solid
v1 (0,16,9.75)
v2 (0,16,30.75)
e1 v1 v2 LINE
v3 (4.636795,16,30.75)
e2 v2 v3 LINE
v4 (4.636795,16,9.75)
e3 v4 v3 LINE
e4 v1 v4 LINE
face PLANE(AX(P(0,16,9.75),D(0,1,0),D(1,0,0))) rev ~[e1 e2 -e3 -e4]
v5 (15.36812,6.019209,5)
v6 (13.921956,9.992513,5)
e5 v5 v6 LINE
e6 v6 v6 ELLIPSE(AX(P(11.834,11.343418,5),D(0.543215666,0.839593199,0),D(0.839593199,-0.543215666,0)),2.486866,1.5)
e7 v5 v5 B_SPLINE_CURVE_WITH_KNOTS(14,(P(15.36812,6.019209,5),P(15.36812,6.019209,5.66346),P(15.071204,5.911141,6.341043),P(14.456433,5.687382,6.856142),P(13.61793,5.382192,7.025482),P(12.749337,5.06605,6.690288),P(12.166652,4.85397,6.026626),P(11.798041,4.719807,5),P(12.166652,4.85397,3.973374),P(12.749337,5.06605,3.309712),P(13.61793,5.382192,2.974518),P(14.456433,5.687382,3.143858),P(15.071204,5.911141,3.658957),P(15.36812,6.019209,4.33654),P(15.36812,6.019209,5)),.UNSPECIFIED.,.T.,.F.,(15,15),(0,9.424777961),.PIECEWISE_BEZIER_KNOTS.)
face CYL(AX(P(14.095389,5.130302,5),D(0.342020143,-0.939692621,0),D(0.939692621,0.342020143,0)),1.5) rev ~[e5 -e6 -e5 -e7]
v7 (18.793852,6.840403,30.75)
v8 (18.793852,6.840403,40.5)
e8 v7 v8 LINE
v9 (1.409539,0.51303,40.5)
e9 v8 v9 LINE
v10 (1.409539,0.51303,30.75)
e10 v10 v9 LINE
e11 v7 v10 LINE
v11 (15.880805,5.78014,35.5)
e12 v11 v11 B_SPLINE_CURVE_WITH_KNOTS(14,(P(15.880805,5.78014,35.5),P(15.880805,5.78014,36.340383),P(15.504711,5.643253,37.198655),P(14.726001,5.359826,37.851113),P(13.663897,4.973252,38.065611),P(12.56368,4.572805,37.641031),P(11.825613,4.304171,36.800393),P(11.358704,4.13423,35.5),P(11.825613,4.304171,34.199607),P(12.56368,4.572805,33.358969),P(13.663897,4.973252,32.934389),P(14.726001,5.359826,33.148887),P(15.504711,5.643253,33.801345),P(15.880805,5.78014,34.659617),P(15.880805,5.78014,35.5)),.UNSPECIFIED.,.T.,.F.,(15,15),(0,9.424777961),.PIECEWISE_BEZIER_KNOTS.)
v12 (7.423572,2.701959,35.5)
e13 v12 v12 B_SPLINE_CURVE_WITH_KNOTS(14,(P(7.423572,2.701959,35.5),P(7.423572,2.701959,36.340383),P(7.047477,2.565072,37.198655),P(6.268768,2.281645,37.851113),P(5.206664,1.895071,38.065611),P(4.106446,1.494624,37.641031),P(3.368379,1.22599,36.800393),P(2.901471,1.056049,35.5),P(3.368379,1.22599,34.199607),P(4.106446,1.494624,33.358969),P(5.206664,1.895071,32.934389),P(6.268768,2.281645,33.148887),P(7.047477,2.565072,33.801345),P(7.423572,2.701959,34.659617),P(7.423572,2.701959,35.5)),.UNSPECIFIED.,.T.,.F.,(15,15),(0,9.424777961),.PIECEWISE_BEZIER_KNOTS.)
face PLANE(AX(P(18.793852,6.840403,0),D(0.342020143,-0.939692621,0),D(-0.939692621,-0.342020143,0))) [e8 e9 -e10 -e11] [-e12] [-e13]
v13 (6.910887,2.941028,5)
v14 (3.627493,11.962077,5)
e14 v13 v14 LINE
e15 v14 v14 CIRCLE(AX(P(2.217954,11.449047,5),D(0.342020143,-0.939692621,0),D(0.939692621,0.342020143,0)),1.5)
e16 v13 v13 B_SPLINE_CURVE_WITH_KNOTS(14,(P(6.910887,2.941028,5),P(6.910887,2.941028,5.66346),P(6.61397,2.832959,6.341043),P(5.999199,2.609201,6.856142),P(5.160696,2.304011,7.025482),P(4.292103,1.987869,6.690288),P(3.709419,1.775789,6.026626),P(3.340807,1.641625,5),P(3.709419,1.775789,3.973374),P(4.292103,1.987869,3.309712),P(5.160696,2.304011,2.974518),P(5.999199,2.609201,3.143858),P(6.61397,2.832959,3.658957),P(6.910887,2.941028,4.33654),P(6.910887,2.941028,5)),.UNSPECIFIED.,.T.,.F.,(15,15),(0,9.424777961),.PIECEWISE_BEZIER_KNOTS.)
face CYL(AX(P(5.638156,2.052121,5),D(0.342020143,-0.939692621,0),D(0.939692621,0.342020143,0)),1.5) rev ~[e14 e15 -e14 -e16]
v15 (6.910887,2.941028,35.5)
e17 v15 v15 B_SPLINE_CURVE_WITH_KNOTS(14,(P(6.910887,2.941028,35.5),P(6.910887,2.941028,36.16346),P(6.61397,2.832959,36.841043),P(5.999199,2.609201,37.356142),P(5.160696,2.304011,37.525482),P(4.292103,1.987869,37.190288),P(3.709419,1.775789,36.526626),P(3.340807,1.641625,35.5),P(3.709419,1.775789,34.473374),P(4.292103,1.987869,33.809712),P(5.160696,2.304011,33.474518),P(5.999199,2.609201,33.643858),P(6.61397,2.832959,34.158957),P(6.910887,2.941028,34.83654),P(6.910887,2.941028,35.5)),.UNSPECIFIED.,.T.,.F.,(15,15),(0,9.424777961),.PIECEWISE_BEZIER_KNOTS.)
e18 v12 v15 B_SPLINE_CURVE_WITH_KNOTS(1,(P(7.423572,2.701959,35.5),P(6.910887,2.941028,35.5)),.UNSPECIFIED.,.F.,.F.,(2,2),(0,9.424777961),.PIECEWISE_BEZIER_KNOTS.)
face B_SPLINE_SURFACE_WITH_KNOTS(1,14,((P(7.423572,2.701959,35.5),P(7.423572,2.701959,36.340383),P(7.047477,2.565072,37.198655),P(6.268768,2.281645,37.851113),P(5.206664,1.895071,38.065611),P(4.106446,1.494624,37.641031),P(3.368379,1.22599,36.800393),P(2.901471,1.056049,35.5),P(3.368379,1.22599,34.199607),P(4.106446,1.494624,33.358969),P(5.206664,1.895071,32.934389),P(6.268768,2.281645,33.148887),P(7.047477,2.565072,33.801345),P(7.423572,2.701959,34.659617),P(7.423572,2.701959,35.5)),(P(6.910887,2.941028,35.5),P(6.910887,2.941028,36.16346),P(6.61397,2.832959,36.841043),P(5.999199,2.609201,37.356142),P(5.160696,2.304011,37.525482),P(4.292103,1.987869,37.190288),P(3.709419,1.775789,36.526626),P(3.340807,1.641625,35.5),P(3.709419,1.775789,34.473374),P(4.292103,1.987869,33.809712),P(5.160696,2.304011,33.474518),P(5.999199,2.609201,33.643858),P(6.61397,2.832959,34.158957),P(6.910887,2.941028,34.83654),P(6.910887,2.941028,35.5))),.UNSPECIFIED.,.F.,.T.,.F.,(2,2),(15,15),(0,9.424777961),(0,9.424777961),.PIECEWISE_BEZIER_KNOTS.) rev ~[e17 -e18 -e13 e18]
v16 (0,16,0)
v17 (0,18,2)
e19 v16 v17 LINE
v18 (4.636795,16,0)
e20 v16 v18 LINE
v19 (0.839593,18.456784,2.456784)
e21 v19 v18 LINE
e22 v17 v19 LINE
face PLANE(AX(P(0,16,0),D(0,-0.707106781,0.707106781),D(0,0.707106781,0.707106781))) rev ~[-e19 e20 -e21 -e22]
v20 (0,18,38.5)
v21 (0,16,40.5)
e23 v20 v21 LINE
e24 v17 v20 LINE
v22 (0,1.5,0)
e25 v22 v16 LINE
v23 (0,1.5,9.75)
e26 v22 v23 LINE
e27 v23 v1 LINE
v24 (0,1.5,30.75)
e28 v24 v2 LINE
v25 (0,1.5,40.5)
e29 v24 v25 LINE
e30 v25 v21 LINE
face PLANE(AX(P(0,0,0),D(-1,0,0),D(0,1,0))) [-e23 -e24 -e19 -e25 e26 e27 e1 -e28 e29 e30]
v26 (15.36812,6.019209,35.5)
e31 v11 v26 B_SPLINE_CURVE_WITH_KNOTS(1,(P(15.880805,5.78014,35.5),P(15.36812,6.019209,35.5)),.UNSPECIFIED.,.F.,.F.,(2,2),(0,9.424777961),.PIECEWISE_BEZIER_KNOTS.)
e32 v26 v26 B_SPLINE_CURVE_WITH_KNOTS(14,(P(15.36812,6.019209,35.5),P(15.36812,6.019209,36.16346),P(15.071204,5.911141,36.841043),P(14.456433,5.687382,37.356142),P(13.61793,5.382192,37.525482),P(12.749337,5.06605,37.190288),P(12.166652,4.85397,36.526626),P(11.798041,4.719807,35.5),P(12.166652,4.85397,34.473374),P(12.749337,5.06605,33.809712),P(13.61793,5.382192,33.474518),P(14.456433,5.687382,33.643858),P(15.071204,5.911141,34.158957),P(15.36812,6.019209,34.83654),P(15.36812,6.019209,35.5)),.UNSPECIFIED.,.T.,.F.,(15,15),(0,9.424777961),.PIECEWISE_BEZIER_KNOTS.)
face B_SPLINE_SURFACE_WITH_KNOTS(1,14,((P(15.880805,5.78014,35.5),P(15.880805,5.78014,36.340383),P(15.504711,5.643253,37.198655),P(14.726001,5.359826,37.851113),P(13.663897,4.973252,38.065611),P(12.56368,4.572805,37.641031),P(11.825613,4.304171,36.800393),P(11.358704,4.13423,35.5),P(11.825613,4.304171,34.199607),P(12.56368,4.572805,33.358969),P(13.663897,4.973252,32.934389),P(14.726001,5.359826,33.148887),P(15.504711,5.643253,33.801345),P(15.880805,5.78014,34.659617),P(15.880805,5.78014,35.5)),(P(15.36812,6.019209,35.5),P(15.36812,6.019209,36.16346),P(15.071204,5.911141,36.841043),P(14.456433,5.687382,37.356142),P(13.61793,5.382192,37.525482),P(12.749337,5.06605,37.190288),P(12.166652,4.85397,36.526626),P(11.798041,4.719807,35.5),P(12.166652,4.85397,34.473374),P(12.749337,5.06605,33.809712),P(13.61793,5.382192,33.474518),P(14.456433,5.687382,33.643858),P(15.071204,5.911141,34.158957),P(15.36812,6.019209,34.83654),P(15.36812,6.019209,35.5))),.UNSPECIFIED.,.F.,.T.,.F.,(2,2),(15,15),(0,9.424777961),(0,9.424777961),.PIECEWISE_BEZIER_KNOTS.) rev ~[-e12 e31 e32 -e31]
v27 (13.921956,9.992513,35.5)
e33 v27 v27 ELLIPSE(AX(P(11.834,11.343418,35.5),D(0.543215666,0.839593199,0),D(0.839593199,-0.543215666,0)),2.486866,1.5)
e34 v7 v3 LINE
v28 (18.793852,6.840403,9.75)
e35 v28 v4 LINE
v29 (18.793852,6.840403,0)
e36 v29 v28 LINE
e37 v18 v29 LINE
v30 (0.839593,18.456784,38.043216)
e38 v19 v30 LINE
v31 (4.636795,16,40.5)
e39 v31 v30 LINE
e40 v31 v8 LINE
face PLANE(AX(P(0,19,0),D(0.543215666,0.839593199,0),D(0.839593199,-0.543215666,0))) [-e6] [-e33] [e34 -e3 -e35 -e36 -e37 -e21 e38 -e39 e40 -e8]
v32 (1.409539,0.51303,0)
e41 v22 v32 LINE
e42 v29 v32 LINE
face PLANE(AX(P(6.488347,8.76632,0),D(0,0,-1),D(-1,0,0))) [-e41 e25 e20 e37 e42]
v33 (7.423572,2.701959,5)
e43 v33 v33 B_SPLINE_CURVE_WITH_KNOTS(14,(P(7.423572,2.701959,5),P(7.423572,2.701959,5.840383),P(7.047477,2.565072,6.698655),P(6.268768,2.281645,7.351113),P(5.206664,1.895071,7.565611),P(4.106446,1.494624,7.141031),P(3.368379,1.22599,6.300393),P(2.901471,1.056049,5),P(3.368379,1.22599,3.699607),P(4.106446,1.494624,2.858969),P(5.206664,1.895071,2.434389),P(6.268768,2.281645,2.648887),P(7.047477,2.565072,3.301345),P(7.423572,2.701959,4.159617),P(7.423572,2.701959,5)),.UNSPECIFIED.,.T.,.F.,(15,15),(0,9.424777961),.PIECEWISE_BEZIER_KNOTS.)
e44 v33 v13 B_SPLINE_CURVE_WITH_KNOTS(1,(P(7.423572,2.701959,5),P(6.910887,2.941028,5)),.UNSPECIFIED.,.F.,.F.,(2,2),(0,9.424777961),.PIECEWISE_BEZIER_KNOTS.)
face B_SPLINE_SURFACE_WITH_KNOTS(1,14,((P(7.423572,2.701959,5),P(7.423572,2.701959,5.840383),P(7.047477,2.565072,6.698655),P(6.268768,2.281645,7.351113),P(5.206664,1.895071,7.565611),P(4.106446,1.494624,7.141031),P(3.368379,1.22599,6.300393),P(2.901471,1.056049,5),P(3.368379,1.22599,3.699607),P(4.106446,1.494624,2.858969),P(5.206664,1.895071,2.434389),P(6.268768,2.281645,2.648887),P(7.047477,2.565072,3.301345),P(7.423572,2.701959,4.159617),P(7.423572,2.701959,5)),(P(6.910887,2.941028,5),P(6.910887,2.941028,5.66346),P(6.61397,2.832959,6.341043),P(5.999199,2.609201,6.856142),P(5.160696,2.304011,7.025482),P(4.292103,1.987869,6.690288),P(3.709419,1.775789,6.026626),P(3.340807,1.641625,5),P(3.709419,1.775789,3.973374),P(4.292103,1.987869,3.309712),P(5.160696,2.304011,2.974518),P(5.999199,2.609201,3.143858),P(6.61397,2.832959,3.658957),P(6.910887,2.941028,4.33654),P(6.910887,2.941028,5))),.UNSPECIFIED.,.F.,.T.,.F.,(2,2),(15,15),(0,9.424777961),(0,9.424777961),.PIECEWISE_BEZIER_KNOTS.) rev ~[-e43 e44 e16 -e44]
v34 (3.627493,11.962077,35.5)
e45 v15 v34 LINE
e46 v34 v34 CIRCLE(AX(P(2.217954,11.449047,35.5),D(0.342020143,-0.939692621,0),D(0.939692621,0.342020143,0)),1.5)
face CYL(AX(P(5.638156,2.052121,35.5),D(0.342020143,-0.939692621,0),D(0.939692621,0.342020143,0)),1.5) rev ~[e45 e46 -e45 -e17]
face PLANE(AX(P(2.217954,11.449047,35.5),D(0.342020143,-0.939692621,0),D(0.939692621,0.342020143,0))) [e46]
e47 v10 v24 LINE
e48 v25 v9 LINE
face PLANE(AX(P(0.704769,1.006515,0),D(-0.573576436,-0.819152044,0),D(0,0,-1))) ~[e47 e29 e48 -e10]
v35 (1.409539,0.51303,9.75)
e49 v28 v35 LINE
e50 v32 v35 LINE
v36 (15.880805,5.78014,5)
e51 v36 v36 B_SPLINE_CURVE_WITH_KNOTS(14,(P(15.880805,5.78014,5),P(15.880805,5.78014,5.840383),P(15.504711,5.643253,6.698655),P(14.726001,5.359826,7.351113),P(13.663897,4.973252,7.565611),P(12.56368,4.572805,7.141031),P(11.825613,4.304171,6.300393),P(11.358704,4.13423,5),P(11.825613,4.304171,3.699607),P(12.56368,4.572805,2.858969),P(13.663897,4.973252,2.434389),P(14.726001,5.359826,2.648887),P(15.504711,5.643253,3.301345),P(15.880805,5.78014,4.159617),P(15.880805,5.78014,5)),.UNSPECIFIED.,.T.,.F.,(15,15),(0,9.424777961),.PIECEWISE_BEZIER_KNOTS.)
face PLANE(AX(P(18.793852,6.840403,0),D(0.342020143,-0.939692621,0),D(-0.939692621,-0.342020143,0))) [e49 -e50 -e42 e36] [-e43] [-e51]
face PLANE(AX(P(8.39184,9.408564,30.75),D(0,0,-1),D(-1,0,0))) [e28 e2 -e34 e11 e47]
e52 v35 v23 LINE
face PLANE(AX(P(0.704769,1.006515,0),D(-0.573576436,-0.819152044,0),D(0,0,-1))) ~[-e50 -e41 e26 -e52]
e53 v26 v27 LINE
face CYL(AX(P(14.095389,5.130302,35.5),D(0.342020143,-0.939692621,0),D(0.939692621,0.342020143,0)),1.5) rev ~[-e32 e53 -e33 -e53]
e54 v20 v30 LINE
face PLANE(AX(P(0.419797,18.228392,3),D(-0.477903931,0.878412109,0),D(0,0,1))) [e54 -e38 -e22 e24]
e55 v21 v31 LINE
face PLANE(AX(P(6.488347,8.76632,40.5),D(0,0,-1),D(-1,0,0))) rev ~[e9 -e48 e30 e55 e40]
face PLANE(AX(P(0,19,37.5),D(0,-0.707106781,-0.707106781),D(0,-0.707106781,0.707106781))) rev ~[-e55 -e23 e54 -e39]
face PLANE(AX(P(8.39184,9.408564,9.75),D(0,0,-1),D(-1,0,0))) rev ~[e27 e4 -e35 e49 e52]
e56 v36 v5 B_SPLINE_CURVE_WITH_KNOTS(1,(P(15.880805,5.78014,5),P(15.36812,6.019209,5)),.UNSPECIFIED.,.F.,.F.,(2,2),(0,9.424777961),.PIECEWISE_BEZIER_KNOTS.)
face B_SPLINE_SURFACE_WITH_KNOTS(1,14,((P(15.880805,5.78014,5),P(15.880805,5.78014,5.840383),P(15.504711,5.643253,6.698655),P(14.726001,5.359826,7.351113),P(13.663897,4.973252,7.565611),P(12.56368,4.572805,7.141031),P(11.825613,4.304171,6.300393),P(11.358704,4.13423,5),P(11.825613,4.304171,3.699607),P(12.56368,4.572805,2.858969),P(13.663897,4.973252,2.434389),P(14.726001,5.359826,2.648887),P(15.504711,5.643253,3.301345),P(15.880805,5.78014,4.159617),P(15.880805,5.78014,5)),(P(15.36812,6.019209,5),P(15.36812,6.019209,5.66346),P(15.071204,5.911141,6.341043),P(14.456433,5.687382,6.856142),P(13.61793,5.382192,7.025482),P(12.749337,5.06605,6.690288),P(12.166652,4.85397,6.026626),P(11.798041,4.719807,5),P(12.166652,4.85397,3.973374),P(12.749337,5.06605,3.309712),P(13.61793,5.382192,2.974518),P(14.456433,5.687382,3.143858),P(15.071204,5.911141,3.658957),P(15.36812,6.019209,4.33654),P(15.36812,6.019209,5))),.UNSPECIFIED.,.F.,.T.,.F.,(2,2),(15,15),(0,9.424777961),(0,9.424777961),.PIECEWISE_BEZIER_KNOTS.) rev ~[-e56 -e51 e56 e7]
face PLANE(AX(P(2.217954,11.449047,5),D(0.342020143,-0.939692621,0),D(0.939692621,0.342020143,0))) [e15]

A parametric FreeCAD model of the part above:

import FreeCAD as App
import Part
import Sketcher
Q = App.Units.Quantity


def edges_at(feature, points):
    """Names of the edges that pass closest to the given points."""
    edges = feature.Shape.Edges
    near = lambda p: min(range(len(edges)), key=lambda i: edges[i].distToShape(Part.Vertex(*p))[0])
    return sorted({f"Edge{near(p) + 1}" for p in points})


def add_polygon(sketch, points):
    """Adds a closed chain of lines whose ends are joined by coincident constraints."""
    first, n = sketch.GeometryCount, len(points)
    for a, b in zip(points, points[1:] + points[:1]):
        sketch.addGeometry(Part.LineSegment(App.Vector(*a, 0), App.Vector(*b, 0)), False)
    for i in range(n):
        sketch.addConstraint(Sketcher.Constraint("Coincident", first + i, 2, first + (i + 1) % n, 1))

doc = App.newDocument("Part")
body = doc.addObject("PartDesign::Body", "Body")

sketch1 = body.newObject("Sketcher::SketchObject", "Sketch")
sketch1.AttachmentSupport = (doc.getObject("XY_Plane"), [""])
sketch1.MapMode = "FlatFace"
add_polygon(sketch1, [(0, 19), (0, 0), (19, 7)])
sketch1.addConstraint([
    Sketcher.Constraint("Vertical", 0),
    Sketcher.Constraint("Coincident", 0, 2, -1, 1),
    Sketcher.Constraint("DistanceY", 0, 2, 0, 1, Q("19 mm")),
    Sketcher.Constraint("Angle", 1, Q("20 deg")),
    Sketcher.Constraint("Distance", 1, Q("20 mm")),
])
pad1 = body.newObject("PartDesign::Pad", "Pad")
pad1.Profile = sketch1
pad1.Length = 40.5
doc.recompute()

chamfer = body.newObject("PartDesign::Chamfer", "Chamfer")
chamfer.Base = (pad1, edges_at(pad1, [(0, 0, 20.25)]))
chamfer.Size = 1.5

sketch2 = body.newObject("Sketcher::SketchObject", "Sketch001")
sketch2.AttachmentSupport = (doc.getObject("XY_Plane"), [""])
sketch2.MapMode = "FlatFace"
sketch2.AttachmentOffset = App.Placement(App.Vector(0, 0, 9.75), App.Rotation())
add_polygon(sketch2, [(0, 16), (0, 0), (19, 7), (19, 16)])
sketch2.addConstraint([
    Sketcher.Constraint("Vertical", 0),
    Sketcher.Constraint("Vertical", 2),
    Sketcher.Constraint("Horizontal", 3),
    Sketcher.Constraint("Coincident", 0, 2, -1, 1),
    Sketcher.Constraint("DistanceY", 0, 2, 0, 1, Q("16 mm")),
    Sketcher.Constraint("Angle", 1, Q("20 deg")),
    Sketcher.Constraint("Distance", 1, Q("20 mm")),
])
pocket1 = body.newObject("PartDesign::Pocket", "Pocket")
pocket1.Profile = sketch2
pocket1.Length = 21
pocket1.Reversed = True

sketch3 = body.newObject("Sketcher::SketchObject", "Sketch002")
sketch3.Placement = App.Placement(App.Vector(0, 0, 0), App.Rotation(App.Vector(0.939692621, 0.342020143, 0), App.Vector(0, 0, 1), App.Vector(0.342020143, -0.939692621, 0), "ZXY"))
sketch3.addGeometry([
    Part.Circle(App.Vector(6, 5, 0), App.Vector(0, 0, 1), 1.5),
    Part.Circle(App.Vector(6, 35.5, 0), App.Vector(0, 0, 1), 1.5),
    Part.Circle(App.Vector(15, 35.5, 0), App.Vector(0, 0, 1), 1.5),
    Part.Circle(App.Vector(15, 5, 0), App.Vector(0, 0, 1), 1.5),
], False)
sketch3.addConstraint([
    Sketcher.Constraint("Equal", 0, 1),
    Sketcher.Constraint("Equal", 1, 2),
    Sketcher.Constraint("Equal", 2, 3),
    Sketcher.Constraint("Horizontal", 1, 3, 2, 3),
    Sketcher.Constraint("Horizontal", 0, 3, 3, 3),
    Sketcher.Constraint("Vertical", 0, 3, 1, 3),
    Sketcher.Constraint("Vertical", 2, 3, 3, 3),
    Sketcher.Constraint("Diameter", 0, Q("3 mm")),
    Sketcher.Constraint("DistanceX", -1, 1, 0, 3, Q("6 mm")),
    Sketcher.Constraint("DistanceY", -1, 1, 0, 3, Q("5 mm")),
    Sketcher.Constraint("DistanceX", -1, 1, 2, 3, Q("15 mm")),
    Sketcher.Constraint("DistanceY", -1, 1, 1, 3, Q("35.5 mm")),
])
pocket2 = body.newObject("PartDesign::Pocket", "Pocket001")
pocket2.Profile = sketch3
pocket2.Length = 10

sketch4 = body.newObject("Sketcher::SketchObject", "Sketch003")
sketch4.AttachmentSupport = (doc.getObject("YZ_Plane"), [""])
sketch4.MapMode = "FlatFace"
add_polygon(sketch4, [(19, 3), (19, 0), (16, 0)])
add_polygon(sketch4, [(16, 40.5), (19, 40.5), (19, 37.5)])
sketch4.addConstraint([
    Sketcher.Constraint("Vertical", 0),
    Sketcher.Constraint("Horizontal", 1),
    Sketcher.Constraint("Horizontal", 3),
    Sketcher.Constraint("Vertical", 4),
    Sketcher.Constraint("PointOnObject", 0, 2, -1),
    Sketcher.Constraint("Perpendicular", 2, 5),
    Sketcher.Constraint("Vertical", 2, 2, 3, 2),
    Sketcher.Constraint("Vertical", 1, 2, 5, 2),
    Sketcher.Constraint("Equal", 3, 0),
    Sketcher.Constraint("DistanceX", 1, 2, 1, 1, Q("3 mm")),
    Sketcher.Constraint("DistanceX", -1, 1, 0, 2, Q("19 mm")),
    Sketcher.Constraint("DistanceY", -1, 1, 3, 2, Q("40.5 mm")),
])
pocket3 = body.newObject("PartDesign::Pocket", "Pocket002")
pocket3.Profile = sketch4
pocket3.Type = "ThroughAll"
pocket3.Reversed = True
doc.recompute()

chamfer2 = body.newObject("PartDesign::Chamfer", "Chamfer001")
chamfer2.Base = (pocket3, edges_at(pocket3, [(0, 19, 20.25)]))
chamfer2.Size = 1
doc.recompute()

chamfer3 = body.newObject("PartDesign::Chamfer", "Chamfer002")
chamfer3.Base = (chamfer2, edges_at(chamfer2, [
    (4.229, 1.539, 5),
    (12.686, 4.617, 5),
    (4.229, 1.539, 35.5),
    (12.686, 4.617, 35.5),
]))
chamfer3.Size = 0.4

doc.recompute()
